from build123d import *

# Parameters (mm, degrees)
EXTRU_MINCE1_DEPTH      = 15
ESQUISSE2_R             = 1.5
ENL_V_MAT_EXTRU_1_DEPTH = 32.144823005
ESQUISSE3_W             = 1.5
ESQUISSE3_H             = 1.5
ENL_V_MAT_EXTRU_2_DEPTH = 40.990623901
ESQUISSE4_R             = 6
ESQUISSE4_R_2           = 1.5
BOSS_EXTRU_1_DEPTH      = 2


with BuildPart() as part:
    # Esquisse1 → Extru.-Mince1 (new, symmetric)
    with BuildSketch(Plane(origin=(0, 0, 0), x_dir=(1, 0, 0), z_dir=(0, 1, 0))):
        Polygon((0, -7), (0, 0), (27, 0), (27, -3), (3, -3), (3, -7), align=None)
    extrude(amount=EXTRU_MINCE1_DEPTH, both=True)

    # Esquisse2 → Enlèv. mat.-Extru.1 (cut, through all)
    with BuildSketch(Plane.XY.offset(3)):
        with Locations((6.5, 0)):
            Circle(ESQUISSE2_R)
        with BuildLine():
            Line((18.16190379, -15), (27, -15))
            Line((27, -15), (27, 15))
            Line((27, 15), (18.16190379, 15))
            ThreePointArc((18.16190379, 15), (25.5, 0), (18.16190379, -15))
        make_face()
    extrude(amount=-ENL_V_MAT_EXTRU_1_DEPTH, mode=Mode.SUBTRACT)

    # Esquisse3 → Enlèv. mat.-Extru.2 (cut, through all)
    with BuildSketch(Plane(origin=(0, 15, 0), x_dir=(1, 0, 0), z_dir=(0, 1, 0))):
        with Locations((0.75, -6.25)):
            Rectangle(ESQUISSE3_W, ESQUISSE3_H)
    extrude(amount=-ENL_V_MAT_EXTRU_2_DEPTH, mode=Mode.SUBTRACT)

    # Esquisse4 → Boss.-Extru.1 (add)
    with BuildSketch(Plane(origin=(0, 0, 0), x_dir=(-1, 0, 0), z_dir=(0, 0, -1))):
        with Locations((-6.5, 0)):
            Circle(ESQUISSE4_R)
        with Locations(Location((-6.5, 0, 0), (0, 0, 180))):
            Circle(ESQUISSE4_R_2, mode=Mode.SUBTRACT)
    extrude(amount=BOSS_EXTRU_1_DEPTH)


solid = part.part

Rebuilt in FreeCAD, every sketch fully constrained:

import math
import FreeCAD as App
import Part
import Sketcher

V = App.Vector
Q = App.Units.Quantity


def add_polygon(sketch, points):
    """Adds a closed chain of lines whose ends are joined by coincident constraints."""
    first, n = sketch.GeometryCount, len(points)
    for a, b in zip(points, points[1:] + points[:1]):
        sketch.addGeometry(Part.LineSegment(App.Vector(*a, 0), App.Vector(*b, 0)), False)
    for i in range(n):
        sketch.addConstraint(Sketcher.Constraint("Coincident", first + i, 2, first + (i + 1) % n, 1))

doc = App.newDocument("Part")
params = doc.addObject("Spreadsheet::Sheet", "Params")
for row, (alias, value) in enumerate([
    ("sketch1_width", "3 mm"),
    ("sketch1_width2", "24 mm"),
    ("sketch1_height", "7 mm"),
    ("pad1_length", "30 mm"),
    ("sketch2_diameter", "3 mm"),
    ("sketch2_radius", "19 mm"),
    ("sketch2_height", "30 mm"),
    ("sketch3_width", "1.5 mm"),
    ("sketch4_diameter", "12 mm"),
    ("sketch4_diameter2", "3 mm"),
    ("pad2_length", "2 mm"),
], start=1):
    params.set(f"A{row}", alias)
    params.set(f"B{row}", "=" + value)
    params.setAlias(f"B{row}", alias)

body = doc.addObject("PartDesign::Body", "Body")

sketch1 = body.newObject("Sketcher::SketchObject", "Sketch")
sketch1.AttachmentSupport = (doc.getObject("XZ_Plane"), [""])
sketch1.MapMode = "FlatFace"
add_polygon(sketch1, [(0, 0), (0, 7), (3, 7), (3, 3), (27, 3), (27, 0)])
sketch1.addConstraint([
    Sketcher.Constraint("Vertical", 0),
    Sketcher.Constraint("Horizontal", 1),
    Sketcher.Constraint("Vertical", 2),
    Sketcher.Constraint("Horizontal", 3),
    Sketcher.Constraint("Vertical", 4),
    Sketcher.Constraint("Horizontal", 5),
    Sketcher.Constraint("Coincident", 5, 2, -1, 1),
    Sketcher.Constraint("Equal", 1, 4),
    Sketcher.Constraint("DistanceX", 1, 1, 1, 2, Q("3 mm")),
    Sketcher.Constraint("DistanceX", 3, 1, 3, 2, Q("24 mm")),
    Sketcher.Constraint("DistanceY", 0, 1, 0, 2, Q("7 mm")),
])
sketch1.setExpression("Constraints[14]", "Params.sketch1_width")
sketch1.setExpression("Constraints[15]", "Params.sketch1_width2")
sketch1.setExpression("Constraints[16]", "Params.sketch1_height")
pad1 = body.newObject("PartDesign::Pad", "Pad")
pad1.Profile = sketch1
pad1.setExpression("Length", "Params.pad1_length")
pad1.Midplane = True

sketch2 = body.newObject("Sketcher::SketchObject", "Sketch001")
sketch2.AttachmentSupport = (doc.getObject("XY_Plane"), [""])
sketch2.MapMode = "FlatFace"
sketch2.AttachmentOffset = App.Placement(V(0, 0, 3), App.Rotation())
sketch2.addGeometry([
    Part.Circle(V(6.5, 0, 0), V(0, 0, 1), 1.5),
    Part.LineSegment(V(18.2, -15, 0), V(27, -15, 0)),
    Part.LineSegment(V(27, -15, 0), V(27, 15, 0)),
    Part.LineSegment(V(27, 15, 0), V(18.2, 15, 0)),
    Part.ArcOfCircle(Part.Circle(V(6.5, 0, 0), V(0, 0, 1), 19), math.radians(-52), math.radians(52)),
], False)
sketch2.addConstraint([
    Sketcher.Constraint("Coincident", 1, 2, 2, 1),
    Sketcher.Constraint("Coincident", 2, 2, 3, 1),
    Sketcher.Constraint("Coincident", 3, 2, 4, 2),
    Sketcher.Constraint("Coincident", 4, 1, 1, 1),
    Sketcher.Constraint("Horizontal", 1),
    Sketcher.Constraint("Vertical", 2),
    Sketcher.Constraint("Horizontal", 3),
    Sketcher.Constraint("Coincident", 4, 3, 0, 3),
    Sketcher.Constraint("Symmetric", 3, 2, 4, 1, -1),
    Sketcher.Constraint("Diameter", 0, Q("3 mm")),
    Sketcher.Constraint("Radius", 4, Q("19 mm")),
    Sketcher.Constraint("DistanceY", 2, 1, 2, 2, Q("30 mm")),
    Sketcher.Constraint("DistanceX", -1, 1, 1, 2, Q("27 mm")),
    Sketcher.Constraint("DistanceX", -1, 1, 0, 3, Q("6.5 mm")),
])
sketch2.setExpression("Constraints[9]", "Params.sketch2_diameter")
sketch2.setExpression("Constraints[10]", "Params.sketch2_radius")
sketch2.setExpression("Constraints[11]", "Params.sketch2_height")
pocket1 = body.newObject("PartDesign::Pocket", "Pocket")
pocket1.Profile = sketch2
pocket1.Type = "ThroughAll"

sketch3 = body.newObject("Sketcher::SketchObject", "Sketch002")
sketch3.AttachmentSupport = (doc.getObject("XZ_Plane"), [""])
sketch3.MapMode = "FlatFace"
sketch3.AttachmentOffset = App.Placement(V(0, 0, -15), App.Rotation())
add_polygon(sketch3, [(0, 5.5), (0, 7), (1.5, 7), (1.5, 5.5)])
sketch3.addConstraint([
    Sketcher.Constraint("Vertical", 0),
    Sketcher.Constraint("Horizontal", 1),
    Sketcher.Constraint("Vertical", 2),
    Sketcher.Constraint("Horizontal", 3),
    Sketcher.Constraint("PointOnObject", 0, 2, -2),
    Sketcher.Constraint("Equal", 3, 0),
    Sketcher.Constraint("DistanceX", 1, 1, 1, 2, Q("1.5 mm")),
    Sketcher.Constraint("DistanceY", -1, 1, 0, 2, Q("7 mm")),
])
sketch3.setExpression("Constraints[10]", "Params.sketch3_width")
pocket2 = body.newObject("PartDesign::Pocket", "Pocket001")
pocket2.Profile = sketch3
pocket2.Type = "ThroughAll"
pocket2.Reversed = True

sketch4 = body.newObject("Sketcher::SketchObject", "Sketch003")
sketch4.AttachmentSupport = (doc.getObject("XY_Plane"), [""])
sketch4.MapMode = "FlatFace"
sketch4.addGeometry([
    Part.Circle(V(6.5, 0, 0), V(0, 0, 1), 6),
    Part.Circle(V(6.5, 0, 0), V(0, 0, 1), 1.5),
], False)
sketch4.addConstraint([
    Sketcher.Constraint("Coincident", 1, 3, 0, 3),
    Sketcher.Constraint("PointOnObject", 0, 3, -1),
    Sketcher.Constraint("Diameter", 0, Q("12 mm")),
    Sketcher.Constraint("Diameter", 1, Q("3 mm")),
    Sketcher.Constraint("DistanceX", -1, 1, 0, 3, Q("6.5 mm")),
])
sketch4.setExpression("Constraints[2]", "Params.sketch4_diameter")
sketch4.setExpression("Constraints[3]", "Params.sketch4_diameter2")
pad2 = body.newObject("PartDesign::Pad", "Pad001")
pad2.Profile = sketch4
pad2.setExpression("Length", "Params.pad2_length")
pad2.Reversed = True

doc.recompute()
